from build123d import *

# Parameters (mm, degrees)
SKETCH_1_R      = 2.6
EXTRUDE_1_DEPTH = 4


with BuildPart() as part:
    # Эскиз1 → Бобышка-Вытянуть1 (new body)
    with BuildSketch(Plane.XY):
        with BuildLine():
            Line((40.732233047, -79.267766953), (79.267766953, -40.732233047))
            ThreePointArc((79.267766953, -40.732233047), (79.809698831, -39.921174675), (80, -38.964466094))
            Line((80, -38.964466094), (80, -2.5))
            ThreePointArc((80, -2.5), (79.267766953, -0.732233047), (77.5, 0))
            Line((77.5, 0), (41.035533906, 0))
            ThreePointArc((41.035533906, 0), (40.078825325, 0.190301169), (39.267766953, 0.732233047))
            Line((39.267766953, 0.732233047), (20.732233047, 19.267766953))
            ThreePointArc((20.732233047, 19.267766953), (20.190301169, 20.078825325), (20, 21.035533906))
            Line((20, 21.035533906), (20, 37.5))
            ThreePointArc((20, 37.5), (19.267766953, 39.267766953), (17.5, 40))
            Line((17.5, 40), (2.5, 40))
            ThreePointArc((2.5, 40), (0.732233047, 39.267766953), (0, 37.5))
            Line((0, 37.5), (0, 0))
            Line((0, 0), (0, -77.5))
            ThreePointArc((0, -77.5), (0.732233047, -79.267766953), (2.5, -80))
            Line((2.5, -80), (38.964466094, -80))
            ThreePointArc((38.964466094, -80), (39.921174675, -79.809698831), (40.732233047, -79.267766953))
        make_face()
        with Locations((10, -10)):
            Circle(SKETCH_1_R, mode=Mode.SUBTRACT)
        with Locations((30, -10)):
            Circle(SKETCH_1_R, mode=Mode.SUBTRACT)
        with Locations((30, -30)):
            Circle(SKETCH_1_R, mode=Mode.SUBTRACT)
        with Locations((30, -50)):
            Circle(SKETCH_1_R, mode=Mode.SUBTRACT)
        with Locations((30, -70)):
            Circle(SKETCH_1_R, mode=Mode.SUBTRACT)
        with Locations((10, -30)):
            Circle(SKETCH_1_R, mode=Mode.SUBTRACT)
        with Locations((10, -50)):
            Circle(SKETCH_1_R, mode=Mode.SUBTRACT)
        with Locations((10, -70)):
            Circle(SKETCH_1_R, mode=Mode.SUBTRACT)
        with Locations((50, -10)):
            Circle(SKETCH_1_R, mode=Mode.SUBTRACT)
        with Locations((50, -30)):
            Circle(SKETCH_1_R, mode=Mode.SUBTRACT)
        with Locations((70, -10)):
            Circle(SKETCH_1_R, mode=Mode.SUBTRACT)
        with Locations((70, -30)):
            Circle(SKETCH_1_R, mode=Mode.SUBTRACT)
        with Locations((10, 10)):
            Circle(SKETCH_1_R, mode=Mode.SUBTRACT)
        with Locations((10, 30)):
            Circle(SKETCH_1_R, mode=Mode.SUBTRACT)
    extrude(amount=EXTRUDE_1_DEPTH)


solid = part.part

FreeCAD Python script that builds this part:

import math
import FreeCAD as App
import Part
import Sketcher
from FreeCAD import Vector
Q = App.Units.Quantity

doc = App.newDocument("Part")
body = doc.addObject("PartDesign::Body", "Body")

# Sketch on XY plane
sketch1 = body.newObject("Sketcher::SketchObject", "Sketch")
sketch1.AttachmentSupport = (doc.getObject("XY_Plane"), [""])
sketch1.MapMode = "FlatFace"
sketch1.addGeometry(Part.LineSegment(Vector(40.732233, -79.267767, 0), Vector(79.267767, -40.732233, 0)), False)
sketch1.addGeometry(Part.ArcOfCircle(Part.Circle(Vector(77.5, -38.964466, 0), Vector(0, 0, 1), 2.5), math.radians(-45), math.radians(0)), False)
sketch1.addGeometry(Part.LineSegment(Vector(80, -38.964466, 0), Vector(80, -2.5, 0)), False)
sketch1.addGeometry(Part.ArcOfCircle(Part.Circle(Vector(77.5, -2.5, 0), Vector(0, 0, 1), 2.5), math.radians(0), math.radians(90)), False)
sketch1.addGeometry(Part.LineSegment(Vector(77.5, 0, 0), Vector(41.035534, 0, 0)), False)
sketch1.addGeometry(Part.ArcOfCircle(Part.Circle(Vector(41.035534, 2.5, 0), Vector(0, 0, 1), 2.5), math.radians(-135), math.radians(-90)), False)
sketch1.addGeometry(Part.LineSegment(Vector(39.267767, 0.732233, 0), Vector(20.732233, 19.267767, 0)), False)
sketch1.addGeometry(Part.ArcOfCircle(Part.Circle(Vector(22.5, 21.035534, 0), Vector(0, 0, 1), 2.5), math.radians(-180), math.radians(-135)), False)
sketch1.addGeometry(Part.LineSegment(Vector(20, 21.035534, 0), Vector(20, 37.5, 0)), False)
sketch1.addGeometry(Part.ArcOfCircle(Part.Circle(Vector(17.5, 37.5, 0), Vector(0, 0, 1), 2.5), math.radians(0), math.radians(90)), False)
sketch1.addGeometry(Part.LineSegment(Vector(17.5, 40, 0), Vector(2.5, 40, 0)), False)
sketch1.addGeometry(Part.ArcOfCircle(Part.Circle(Vector(2.5, 37.5, 0), Vector(0, 0, 1), 2.5), math.radians(90), math.radians(180)), False)
sketch1.addGeometry(Part.LineSegment(Vector(0, 37.5, 0), Vector(0, -77.5, 0)), False)
sketch1.addGeometry(Part.ArcOfCircle(Part.Circle(Vector(2.5, -77.5, 0), Vector(0, 0, 1), 2.5), math.radians(180), math.radians(270)), False)
sketch1.addGeometry(Part.LineSegment(Vector(2.5, -80, 0), Vector(38.964466, -80, 0)), False)
sketch1.addGeometry(Part.ArcOfCircle(Part.Circle(Vector(38.964466, -77.5, 0), Vector(0, 0, 1), 2.5), math.radians(-90), math.radians(-45)), False)
sketch1.addGeometry(Part.Circle(Vector(10, -70, 0), Vector(0, 0, 1), 2.6), False)
sketch1.addGeometry(Part.Circle(Vector(10, -50, 0), Vector(0, 0, 1), 2.6), False)
sketch1.addGeometry(Part.Circle(Vector(30, -70, 0), Vector(0, 0, 1), 2.6), False)
sketch1.addGeometry(Part.Circle(Vector(30, -50, 0), Vector(0, 0, 1), 2.6), False)
sketch1.addGeometry(Part.Circle(Vector(10, -30, 0), Vector(0, 0, 1), 2.6), False)
sketch1.addGeometry(Part.Circle(Vector(30, -30, 0), Vector(0, 0, 1), 2.6), False)
sketch1.addGeometry(Part.Circle(Vector(50, -30, 0), Vector(0, 0, 1), 2.6), False)
sketch1.addGeometry(Part.Circle(Vector(70, -30, 0), Vector(0, 0, 1), 2.6), False)
sketch1.addGeometry(Part.Circle(Vector(10, -10, 0), Vector(0, 0, 1), 2.6), False)
sketch1.addGeometry(Part.Circle(Vector(30, -10, 0), Vector(0, 0, 1), 2.6), False)
sketch1.addGeometry(Part.Circle(Vector(10, 10, 0), Vector(0, 0, 1), 2.6), False)
sketch1.addGeometry(Part.Circle(Vector(10, 30, 0), Vector(0, 0, 1), 2.6), False)
sketch1.addGeometry(Part.Circle(Vector(50, -10, 0), Vector(0, 0, 1), 2.6), False)
sketch1.addGeometry(Part.Circle(Vector(70, -10, 0), Vector(0, 0, 1), 2.6), False)
sketch1.addConstraint(Sketcher.Constraint("Tangent", 0, 2, 1, 1))
sketch1.addConstraint(Sketcher.Constraint("Tangent", 1, 2, 2, 1))
sketch1.addConstraint(Sketcher.Constraint("Tangent", 2, 2, 3, 1))
sketch1.addConstraint(Sketcher.Constraint("Tangent", 3, 2, 4, 1))
sketch1.addConstraint(Sketcher.Constraint("Tangent", 4, 2, 5, 2))
sketch1.addConstraint(Sketcher.Constraint("Tangent", 5, 1, 6, 1))
sketch1.addConstraint(Sketcher.Constraint("Tangent", 6, 2, 7, 2))
sketch1.addConstraint(Sketcher.Constraint("Tangent", 7, 1, 8, 1))
sketch1.addConstraint(Sketcher.Constraint("Tangent", 8, 2, 9, 1))
sketch1.addConstraint(Sketcher.Constraint("Tangent", 9, 2, 10, 1))
sketch1.addConstraint(Sketcher.Constraint("Tangent", 10, 2, 11, 1))
sketch1.addConstraint(Sketcher.Constraint("Tangent", 11, 2, 12, 1))
sketch1.addConstraint(Sketcher.Constraint("Tangent", 12, 2, 13, 1))
sketch1.addConstraint(Sketcher.Constraint("Tangent", 13, 2, 14, 1))
sketch1.addConstraint(Sketcher.Constraint("Tangent", 14, 2, 15, 1))
sketch1.addConstraint(Sketcher.Constraint("Tangent", 15, 2, 0, 1))
sketch1.addConstraint(Sketcher.Constraint("Vertical", 2))
sketch1.addConstraint(Sketcher.Constraint("Horizontal", 4))
sketch1.addConstraint(Sketcher.Constraint("Vertical", 8))
sketch1.addConstraint(Sketcher.Constraint("Horizontal", 10))
sketch1.addConstraint(Sketcher.Constraint("Vertical", 12))
sketch1.addConstraint(Sketcher.Constraint("Horizontal", 14))
sketch1.addConstraint(Sketcher.Constraint("Equal", 1, 3))
sketch1.addConstraint(Sketcher.Constraint("Equal", 3, 5))
sketch1.addConstraint(Sketcher.Constraint("Equal", 5, 7))
sketch1.addConstraint(Sketcher.Constraint("Equal", 7, 9))
sketch1.addConstraint(Sketcher.Constraint("Equal", 9, 11))
sketch1.addConstraint(Sketcher.Constraint("Equal", 11, 13))
sketch1.addConstraint(Sketcher.Constraint("Equal", 13, 15))
sketch1.addConstraint(Sketcher.Constraint("Equal", 16, 17))
sketch1.addConstraint(Sketcher.Constraint("Equal", 17, 18))
sketch1.addConstraint(Sketcher.Constraint("Equal", 18, 19))
sketch1.addConstraint(Sketcher.Constraint("Equal", 19, 20))
sketch1.addConstraint(Sketcher.Constraint("Equal", 20, 21))
sketch1.addConstraint(Sketcher.Constraint("Equal", 21, 22))
sketch1.addConstraint(Sketcher.Constraint("Equal", 22, 23))
sketch1.addConstraint(Sketcher.Constraint("Equal", 23, 24))
sketch1.addConstraint(Sketcher.Constraint("Equal", 24, 25))
sketch1.addConstraint(Sketcher.Constraint("Equal", 25, 26))
sketch1.addConstraint(Sketcher.Constraint("Equal", 26, 27))
sketch1.addConstraint(Sketcher.Constraint("Equal", 27, 28))
sketch1.addConstraint(Sketcher.Constraint("Equal", 28, 29))
sketch1.addConstraint(Sketcher.Constraint("Symmetric", 24, 3, 26, 3, -1))
sketch1.addConstraint(Sketcher.Constraint("Symmetric", 20, 3, 27, 3, -1))
sketch1.addConstraint(Sketcher.Constraint("PointOnObject", 3, 2, -1))
sketch1.addConstraint(Sketcher.Constraint("PointOnObject", 11, 2, -2))
sketch1.addConstraint(Sketcher.Constraint("Perpendicular", 0, 6))
sketch1.addConstraint(Sketcher.Constraint("Horizontal", 16, 3, 18, 3))
sketch1.addConstraint(Sketcher.Constraint("Horizontal", 17, 3, 19, 3))
sketch1.addConstraint(Sketcher.Constraint("Horizontal", 20, 3, 21, 3))
sketch1.addConstraint(Sketcher.Constraint("Horizontal", 21, 3, 22, 3))
sketch1.addConstraint(Sketcher.Constraint("Horizontal", 22, 3, 23, 3))
sketch1.addConstraint(Sketcher.Constraint("Horizontal", 24, 3, 25, 3))
sketch1.addConstraint(Sketcher.Constraint("Horizontal", 25, 3, 28, 3))
sketch1.addConstraint(Sketcher.Constraint("Horizontal", 28, 3, 29, 3))
sketch1.addConstraint(Sketcher.Constraint("Vertical", 16, 3, 17, 3))
sketch1.addConstraint(Sketcher.Constraint("Vertical", 18, 3, 19, 3))
sketch1.addConstraint(Sketcher.Constraint("Vertical", 17, 3, 20, 3))
sketch1.addConstraint(Sketcher.Constraint("Vertical", 19, 3, 21, 3))
sketch1.addConstraint(Sketcher.Constraint("Vertical", 20, 3, 24, 3))
sketch1.addConstraint(Sketcher.Constraint("Vertical", 21, 3, 25, 3))
sketch1.addConstraint(Sketcher.Constraint("Vertical", 22, 3, 28, 3))
sketch1.addConstraint(Sketcher.Constraint("Vertical", 23, 3, 29, 3))
sketch1.addConstraint(Sketcher.Constraint("Equal", 4, 14))
sketch1.addConstraint(Sketcher.Constraint("Equal", 14, 2))
sketch1.addConstraint(Sketcher.Constraint("Diameter", 16, Q("5.2 mm")))
sketch1.addConstraint(Sketcher.Constraint("Radius", 1, Q("2.5 mm")))
sketch1.addConstraint(Sketcher.Constraint("DistanceX", 10, 2, 10, 1, Q("15 mm")))
sketch1.addConstraint(Sketcher.Constraint("DistanceY", 12, 2, 12, 1, Q("115 mm")))
sketch1.addConstraint(Sketcher.Constraint("Angle", 0, Q("45 deg")))
sketch1.addConstraint(Sketcher.Constraint("DistanceX", -1, 1, 16, 3, Q("10 mm")))
sketch1.addConstraint(Sketcher.Constraint("DistanceY", 16, 3, -1, 1, Q("70 mm")))
sketch1.addConstraint(Sketcher.Constraint("DistanceY", 17, 3, -1, 1, Q("50 mm")))
sketch1.addConstraint(Sketcher.Constraint("DistanceX", -1, 1, 18, 3, Q("30 mm")))
sketch1.addConstraint(Sketcher.Constraint("DistanceY", 20, 3, -1, 1, Q("30 mm")))
sketch1.addConstraint(Sketcher.Constraint("DistanceX", -1, 1, 22, 3, Q("50 mm")))
sketch1.addConstraint(Sketcher.Constraint("DistanceX", -1, 1, 23, 3, Q("70 mm")))
sketch1.addConstraint(Sketcher.Constraint("DistanceY", 24, 3, -1, 1, Q("10 mm")))
sketch1.addConstraint(Sketcher.Constraint("DistanceX", -1, 1, 1, 2, Q("80 mm")))
sketch1.addConstraint(Sketcher.Constraint("DistanceY", 5, 1, 7, 3, Q("20.303301 mm")))
pad1 = body.newObject("PartDesign::Pad", "Pad")
pad1.Profile = sketch1
pad1.Length = 4

doc.recompute()
